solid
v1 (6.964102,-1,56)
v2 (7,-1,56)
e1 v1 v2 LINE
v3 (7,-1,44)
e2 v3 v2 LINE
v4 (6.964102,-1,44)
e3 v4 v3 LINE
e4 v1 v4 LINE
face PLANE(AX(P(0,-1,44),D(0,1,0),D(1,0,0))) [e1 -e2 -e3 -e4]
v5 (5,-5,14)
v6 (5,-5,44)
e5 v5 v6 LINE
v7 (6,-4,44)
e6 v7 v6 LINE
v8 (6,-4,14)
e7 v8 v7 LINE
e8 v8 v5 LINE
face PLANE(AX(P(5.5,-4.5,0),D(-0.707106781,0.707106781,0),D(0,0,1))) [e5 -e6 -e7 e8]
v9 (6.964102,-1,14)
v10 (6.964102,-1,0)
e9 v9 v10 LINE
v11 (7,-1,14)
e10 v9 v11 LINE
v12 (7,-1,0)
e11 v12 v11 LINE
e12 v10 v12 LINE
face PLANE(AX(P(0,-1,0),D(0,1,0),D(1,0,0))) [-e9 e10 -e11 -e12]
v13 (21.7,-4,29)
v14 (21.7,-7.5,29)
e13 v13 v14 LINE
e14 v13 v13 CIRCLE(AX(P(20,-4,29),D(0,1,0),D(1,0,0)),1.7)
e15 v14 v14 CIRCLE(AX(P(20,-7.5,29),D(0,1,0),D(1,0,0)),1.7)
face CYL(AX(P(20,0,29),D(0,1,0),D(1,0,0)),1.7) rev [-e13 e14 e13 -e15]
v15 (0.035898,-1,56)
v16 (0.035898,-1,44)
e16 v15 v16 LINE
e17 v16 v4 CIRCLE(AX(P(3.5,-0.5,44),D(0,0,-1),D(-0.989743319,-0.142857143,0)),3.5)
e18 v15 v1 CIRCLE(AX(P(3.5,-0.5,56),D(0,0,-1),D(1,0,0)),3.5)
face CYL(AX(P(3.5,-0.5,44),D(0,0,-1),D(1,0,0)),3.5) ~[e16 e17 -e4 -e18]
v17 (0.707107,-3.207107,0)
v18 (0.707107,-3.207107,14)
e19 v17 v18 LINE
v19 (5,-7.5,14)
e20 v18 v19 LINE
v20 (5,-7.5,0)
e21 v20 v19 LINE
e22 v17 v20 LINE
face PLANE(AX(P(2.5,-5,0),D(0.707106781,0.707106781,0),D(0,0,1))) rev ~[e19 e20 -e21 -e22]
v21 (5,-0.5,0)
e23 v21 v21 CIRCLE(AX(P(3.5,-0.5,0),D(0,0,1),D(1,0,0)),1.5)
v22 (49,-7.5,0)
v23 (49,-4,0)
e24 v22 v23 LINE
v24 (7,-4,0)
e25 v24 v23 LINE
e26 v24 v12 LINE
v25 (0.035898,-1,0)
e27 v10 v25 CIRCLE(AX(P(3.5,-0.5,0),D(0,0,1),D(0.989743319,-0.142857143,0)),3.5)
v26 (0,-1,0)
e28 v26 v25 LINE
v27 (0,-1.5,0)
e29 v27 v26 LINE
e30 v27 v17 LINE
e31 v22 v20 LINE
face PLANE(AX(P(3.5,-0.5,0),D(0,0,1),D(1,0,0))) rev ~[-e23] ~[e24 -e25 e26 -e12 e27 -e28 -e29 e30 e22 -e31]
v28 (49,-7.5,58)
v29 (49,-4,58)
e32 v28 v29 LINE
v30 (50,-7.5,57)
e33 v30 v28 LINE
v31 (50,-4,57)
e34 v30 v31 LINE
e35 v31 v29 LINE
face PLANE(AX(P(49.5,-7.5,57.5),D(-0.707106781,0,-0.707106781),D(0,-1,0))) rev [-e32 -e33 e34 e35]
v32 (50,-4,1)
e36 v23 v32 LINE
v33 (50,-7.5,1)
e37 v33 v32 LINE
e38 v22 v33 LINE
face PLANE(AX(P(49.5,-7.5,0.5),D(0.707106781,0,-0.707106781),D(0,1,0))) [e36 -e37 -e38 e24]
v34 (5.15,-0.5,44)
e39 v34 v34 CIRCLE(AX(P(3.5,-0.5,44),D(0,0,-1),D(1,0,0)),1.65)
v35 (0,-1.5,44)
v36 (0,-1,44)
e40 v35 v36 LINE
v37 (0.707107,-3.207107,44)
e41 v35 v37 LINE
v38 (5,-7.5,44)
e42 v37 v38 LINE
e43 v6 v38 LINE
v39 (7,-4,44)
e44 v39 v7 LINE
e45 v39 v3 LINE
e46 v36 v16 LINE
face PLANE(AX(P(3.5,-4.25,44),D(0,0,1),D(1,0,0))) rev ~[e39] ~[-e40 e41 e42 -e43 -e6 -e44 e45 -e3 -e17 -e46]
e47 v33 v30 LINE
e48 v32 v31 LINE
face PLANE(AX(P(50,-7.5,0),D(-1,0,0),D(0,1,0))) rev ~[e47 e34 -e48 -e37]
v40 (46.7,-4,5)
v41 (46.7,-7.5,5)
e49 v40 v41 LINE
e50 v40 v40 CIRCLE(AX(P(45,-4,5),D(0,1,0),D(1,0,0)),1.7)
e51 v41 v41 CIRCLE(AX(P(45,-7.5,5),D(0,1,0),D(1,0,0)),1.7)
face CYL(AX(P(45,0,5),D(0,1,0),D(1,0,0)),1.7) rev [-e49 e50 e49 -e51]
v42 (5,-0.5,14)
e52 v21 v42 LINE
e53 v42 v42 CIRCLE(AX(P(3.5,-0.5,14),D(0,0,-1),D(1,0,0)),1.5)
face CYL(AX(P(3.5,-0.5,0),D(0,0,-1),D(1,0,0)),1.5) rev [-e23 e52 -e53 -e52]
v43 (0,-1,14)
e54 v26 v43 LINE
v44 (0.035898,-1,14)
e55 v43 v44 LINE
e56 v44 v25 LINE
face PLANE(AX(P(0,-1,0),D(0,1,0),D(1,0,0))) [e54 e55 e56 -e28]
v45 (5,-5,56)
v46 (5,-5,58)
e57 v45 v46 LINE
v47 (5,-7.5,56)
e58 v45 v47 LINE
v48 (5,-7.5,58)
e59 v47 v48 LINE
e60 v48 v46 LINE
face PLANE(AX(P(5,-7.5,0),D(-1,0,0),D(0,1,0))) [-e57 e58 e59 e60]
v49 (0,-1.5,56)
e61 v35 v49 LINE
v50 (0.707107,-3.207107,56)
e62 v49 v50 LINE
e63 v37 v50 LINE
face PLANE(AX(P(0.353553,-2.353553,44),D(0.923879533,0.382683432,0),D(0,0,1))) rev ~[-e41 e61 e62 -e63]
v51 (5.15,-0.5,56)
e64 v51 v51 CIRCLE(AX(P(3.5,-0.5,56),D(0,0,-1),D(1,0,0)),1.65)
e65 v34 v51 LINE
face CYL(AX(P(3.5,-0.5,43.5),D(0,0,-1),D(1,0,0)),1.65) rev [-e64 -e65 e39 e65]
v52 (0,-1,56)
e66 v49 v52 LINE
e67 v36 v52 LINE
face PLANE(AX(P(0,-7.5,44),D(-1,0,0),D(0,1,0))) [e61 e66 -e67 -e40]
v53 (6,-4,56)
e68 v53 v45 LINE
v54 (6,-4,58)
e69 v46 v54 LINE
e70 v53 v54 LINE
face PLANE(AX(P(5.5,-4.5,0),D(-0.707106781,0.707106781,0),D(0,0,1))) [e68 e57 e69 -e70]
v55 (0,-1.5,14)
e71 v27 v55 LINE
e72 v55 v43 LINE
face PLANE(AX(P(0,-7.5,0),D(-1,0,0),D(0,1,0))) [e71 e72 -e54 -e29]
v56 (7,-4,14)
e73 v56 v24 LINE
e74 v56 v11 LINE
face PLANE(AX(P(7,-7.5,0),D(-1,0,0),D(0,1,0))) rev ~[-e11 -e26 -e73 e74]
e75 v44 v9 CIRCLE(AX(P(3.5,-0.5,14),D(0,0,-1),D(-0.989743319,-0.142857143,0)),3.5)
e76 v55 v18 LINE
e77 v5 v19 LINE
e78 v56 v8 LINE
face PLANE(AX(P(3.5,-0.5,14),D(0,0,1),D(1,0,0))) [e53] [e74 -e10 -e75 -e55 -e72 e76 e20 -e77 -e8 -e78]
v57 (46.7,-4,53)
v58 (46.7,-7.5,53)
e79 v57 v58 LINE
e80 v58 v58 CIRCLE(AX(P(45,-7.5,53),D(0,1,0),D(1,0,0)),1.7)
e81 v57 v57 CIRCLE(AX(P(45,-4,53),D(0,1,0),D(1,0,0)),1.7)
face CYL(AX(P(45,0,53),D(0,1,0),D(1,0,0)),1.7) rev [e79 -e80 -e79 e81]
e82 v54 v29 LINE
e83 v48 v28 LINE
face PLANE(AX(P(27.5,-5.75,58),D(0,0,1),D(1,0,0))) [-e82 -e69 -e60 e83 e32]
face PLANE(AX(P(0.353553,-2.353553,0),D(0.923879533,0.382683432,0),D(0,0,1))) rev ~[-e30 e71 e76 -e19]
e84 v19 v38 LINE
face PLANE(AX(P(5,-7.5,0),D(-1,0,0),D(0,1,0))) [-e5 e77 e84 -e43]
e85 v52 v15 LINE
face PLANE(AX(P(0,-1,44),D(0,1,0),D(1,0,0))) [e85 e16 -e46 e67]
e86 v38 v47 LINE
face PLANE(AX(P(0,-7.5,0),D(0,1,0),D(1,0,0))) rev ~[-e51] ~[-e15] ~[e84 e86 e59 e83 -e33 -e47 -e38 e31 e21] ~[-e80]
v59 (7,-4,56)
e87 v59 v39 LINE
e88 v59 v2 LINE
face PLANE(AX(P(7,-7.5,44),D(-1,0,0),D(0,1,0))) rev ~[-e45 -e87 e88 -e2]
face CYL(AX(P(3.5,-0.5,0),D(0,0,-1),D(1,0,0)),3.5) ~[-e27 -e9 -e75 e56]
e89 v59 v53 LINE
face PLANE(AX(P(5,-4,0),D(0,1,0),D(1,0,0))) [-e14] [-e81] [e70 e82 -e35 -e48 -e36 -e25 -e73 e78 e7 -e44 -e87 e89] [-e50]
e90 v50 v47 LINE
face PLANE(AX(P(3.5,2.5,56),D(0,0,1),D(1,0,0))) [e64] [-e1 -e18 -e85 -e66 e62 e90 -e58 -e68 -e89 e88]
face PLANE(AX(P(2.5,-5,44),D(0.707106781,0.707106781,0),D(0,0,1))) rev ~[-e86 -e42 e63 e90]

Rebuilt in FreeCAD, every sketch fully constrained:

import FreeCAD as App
import Part
import Sketcher


def edges_at(feature, points):
    """Names of the edges that pass closest to the given points."""
    edges = feature.Shape.Edges
    near = lambda p: min(range(len(edges)), key=lambda i: edges[i].distToShape(Part.Vertex(*p))[0])
    return sorted({f"Edge{near(p) + 1}" for p in points})

doc = App.newDocument("Part")
body = doc.addObject("PartDesign::Body", "Body")

# Sketch on XZ plane
sketch1 = body.newObject("Sketcher::SketchObject", "Sketch")
sketch1.AttachmentSupport = (doc.getObject("XZ_Plane"), [""])
sketch1.MapMode = "FlatFace"
sketch1.addGeometry(Part.Circle(App.Vector(45, 5, 0), App.Vector(0, 0, 1), 1.7), False)
sketch1.addConstraint(Sketcher.Constraint("Diameter", 0, 3.4))
sketch1.addConstraint(Sketcher.Constraint("DistanceX", -1, 1, 0, 3, 45.0))
sketch1.addConstraint(Sketcher.Constraint("DistanceY", -1, 1, 0, 3, 5.0))
pad1 = body.newObject("PartDesign::Pad", "Pad")
pad1.Profile = sketch1
pad1.Length = 10
body2 = doc.addObject("PartDesign::Body", "Body001")

# Sketch on XZ plane
sketch2 = body2.newObject("Sketcher::SketchObject", "Sketch001")
sketch2.AttachmentSupport = (doc.getObject("XZ_Plane001"), [""])
sketch2.MapMode = "FlatFace"
sketch2.addGeometry(Part.Circle(App.Vector(45, 53, 0), App.Vector(0, 0, 1), 1.7), False)
sketch2.addConstraint(Sketcher.Constraint("Diameter", 0, 3.4))
sketch2.addConstraint(Sketcher.Constraint("DistanceX", -1, 1, 0, 3, 45.0))
sketch2.addConstraint(Sketcher.Constraint("DistanceY", -1, 1, 0, 3, 53.0))
pad2 = body2.newObject("PartDesign::Pad", "Pad001")
pad2.Profile = sketch2
pad2.Length = 10
body3 = doc.addObject("PartDesign::Body", "Body002")
body3.AllowCompound = True

# Sketch on XZ plane
sketch3 = body3.newObject("Sketcher::SketchObject", "Sketch002")
sketch3.AttachmentSupport = (doc.getObject("XZ_Plane002"), [""])
sketch3.MapMode = "FlatFace"
sketch3.addGeometry(Part.Circle(App.Vector(20, 29, 0), App.Vector(0, 0, 1), 1.7), False)
sketch3.addConstraint(Sketcher.Constraint("Diameter", 0, 3.4))
sketch3.addConstraint(Sketcher.Constraint("DistanceX", -1, 1, 0, 3, 20.0))
sketch3.addConstraint(Sketcher.Constraint("DistanceY", -1, 1, 0, 3, 29.0))
pad3 = body3.newObject("PartDesign::Pad", "Pad002")
pad3.Profile = sketch3
pad3.Length = 10
doc.recompute()

boolean = body3.newObject("PartDesign::Boolean", "Boolean")
boolean.Type = "Fuse"
boolean.addObjects([body])
doc.recompute()

boolean2 = body3.newObject("PartDesign::Boolean", "Boolean001")
boolean2.Type = "Fuse"
boolean2.addObjects([body2])
body4 = doc.addObject("PartDesign::Body", "Body003")

# Sketch on XY plane
sketch4 = body4.newObject("Sketcher::SketchObject", "Sketch003")
sketch4.AttachmentSupport = (doc.getObject("XY_Plane003"), [""])
sketch4.MapMode = "FlatFace"
sketch4.addGeometry(Part.Circle(App.Vector(3.5, -0.5, 0), App.Vector(0, 0, 1), 1.5), False)
sketch4.addConstraint(Sketcher.Constraint("Diameter", 0, 3.0))
sketch4.addConstraint(Sketcher.Constraint("DistanceX", -1, 1, 0, 3, 3.5))
sketch4.addConstraint(Sketcher.Constraint("DistanceY", 0, 3, -1, 1, 0.5))
pad4 = body4.newObject("PartDesign::Pad", "Pad003")
pad4.Profile = sketch4
pad4.Length = 15
body5 = doc.addObject("PartDesign::Body", "Body004")

# Sketch on XY plane
sketch5 = body5.newObject("Sketcher::SketchObject", "Sketch004")
sketch5.AttachmentSupport = (doc.getObject("XY_Plane004"), [""])
sketch5.MapMode = "FlatFace"
sketch5.addGeometry(Part.Circle(App.Vector(3.5, -0.5, 0), App.Vector(0, 0, 1), 3.5), False)
sketch5.addConstraint(Sketcher.Constraint("Diameter", 0, 7.0))
sketch5.addConstraint(Sketcher.Constraint("DistanceX", -1, 1, 0, 3, 3.5))
sketch5.addConstraint(Sketcher.Constraint("DistanceY", 0, 3, -1, 1, 0.5))
pad5 = body5.newObject("PartDesign::Pad", "Pad004")
pad5.Profile = sketch5
pad5.Length = 14
body6 = doc.addObject("PartDesign::Body", "Body005")

# Sketch on XY plane
sketch6 = body6.newObject("Sketcher::SketchObject", "Sketch005")
sketch6.AttachmentSupport = (doc.getObject("XY_Plane005"), [""])
sketch6.MapMode = "FlatFace"
sketch6.addGeometry(Part.LineSegment(App.Vector(0, -1, 0), App.Vector(0, -7.5, 0)), False)
sketch6.addGeometry(Part.LineSegment(App.Vector(0, -7.5, 0), App.Vector(7, -7.5, 0)), False)
sketch6.addGeometry(Part.LineSegment(App.Vector(7, -7.5, 0), App.Vector(7, -1, 0)), False)
sketch6.addGeometry(Part.LineSegment(App.Vector(7, -1, 0), App.Vector(0, -1, 0)), False)
sketch6.addConstraint(Sketcher.Constraint("Coincident", 0, 2, 1, 1))
sketch6.addConstraint(Sketcher.Constraint("Coincident", 1, 2, 2, 1))
sketch6.addConstraint(Sketcher.Constraint("Coincident", 2, 2, 3, 1))
sketch6.addConstraint(Sketcher.Constraint("Coincident", 3, 2, 0, 1))
sketch6.addConstraint(Sketcher.Constraint("Vertical", 0))
sketch6.addConstraint(Sketcher.Constraint("Horizontal", 1))
sketch6.addConstraint(Sketcher.Constraint("Vertical", 2))
sketch6.addConstraint(Sketcher.Constraint("Horizontal", 3))
sketch6.addConstraint(Sketcher.Constraint("PointOnObject", 0, 2, -2))
sketch6.addConstraint(Sketcher.Constraint("DistanceX", 1, 1, 1, 2, 7.0))
sketch6.addConstraint(Sketcher.Constraint("DistanceY", 0, 2, 0, 1, 6.5))
sketch6.addConstraint(Sketcher.Constraint("DistanceY", 2, 2, -1, 1, 1.0))
pad6 = body6.newObject("PartDesign::Pad", "Pad005")
pad6.Profile = sketch6
pad6.Length = 14
doc.recompute()

chamfer = body6.newObject("PartDesign::Chamfer", "Chamfer")
chamfer.Base = (pad6, edges_at(pad6, [(0, -7.5, 7)]))
chamfer.Size = 5
doc.recompute()

chamfer2 = body6.newObject("PartDesign::Chamfer", "Chamfer001")
chamfer2.Base = (chamfer, edges_at(chamfer, [(0, -2.5, 7)]))
chamfer2.Size = 1
doc.recompute()

boolean3 = body6.newObject("PartDesign::Boolean", "Boolean002")
boolean3.Type = "Fuse"
boolean3.addObjects([body5])
doc.recompute()

boolean4 = body6.newObject("PartDesign::Boolean", "Boolean003")
boolean4.Type = "Cut"
boolean4.addObjects([body4])
body7 = doc.addObject("PartDesign::Body", "Body006")

# Sketch on XY plane
sketch7 = body7.newObject("Sketcher::SketchObject", "Sketch006")
sketch7.AttachmentSupport = (doc.getObject("XY_Plane006"), [""])
sketch7.MapMode = "FlatFace"
sketch7.addGeometry(Part.LineSegment(App.Vector(5, -4, 0), App.Vector(5, -7.5, 0)), False)
sketch7.addGeometry(Part.LineSegment(App.Vector(5, -7.5, 0), App.Vector(50, -7.5, 0)), False)
sketch7.addGeometry(Part.LineSegment(App.Vector(50, -7.5, 0), App.Vector(50, -4, 0)), False)
sketch7.addGeometry(Part.LineSegment(App.Vector(50, -4, 0), App.Vector(5, -4, 0)), False)
sketch7.addConstraint(Sketcher.Constraint("Coincident", 0, 2, 1, 1))
sketch7.addConstraint(Sketcher.Constraint("Coincident", 1, 2, 2, 1))
sketch7.addConstraint(Sketcher.Constraint("Coincident", 2, 2, 3, 1))
sketch7.addConstraint(Sketcher.Constraint("Coincident", 3, 2, 0, 1))
sketch7.addConstraint(Sketcher.Constraint("Vertical", 0))
sketch7.addConstraint(Sketcher.Constraint("Horizontal", 1))
sketch7.addConstraint(Sketcher.Constraint("Vertical", 2))
sketch7.addConstraint(Sketcher.Constraint("Horizontal", 3))
sketch7.addConstraint(Sketcher.Constraint("DistanceX", 1, 1, 1, 2, 45.0))
sketch7.addConstraint(Sketcher.Constraint("DistanceY", 0, 2, 0, 1, 3.5))
sketch7.addConstraint(Sketcher.Constraint("DistanceX", -1, 1, 0, 2, 5.0))
sketch7.addConstraint(Sketcher.Constraint("DistanceY", 2, 2, -1, 1, 4.0))
pad7 = body7.newObject("PartDesign::Pad", "Pad006")
pad7.Profile = sketch7
pad7.Length = 58
doc.recompute()

chamfer3 = body7.newObject("PartDesign::Chamfer", "Chamfer002")
chamfer3.Base = (pad7, edges_at(pad7, [(5, -4, 29)]))
chamfer3.Size = 1
body8 = doc.addObject("PartDesign::Body", "Body007")

# Sketch on XY plane
sketch8 = body8.newObject("Sketcher::SketchObject", "Sketch007")
sketch8.AttachmentSupport = (doc.getObject("XY_Plane007"), [""])
sketch8.MapMode = "FlatFace"
sketch8.AttachmentOffset = App.Placement(App.Vector(0, 0, 56), App.Rotation())
sketch8.addGeometry(Part.LineSegment(App.Vector(-1.5, 14.5, 0), App.Vector(-1.5, -9.5, 0)), False)
sketch8.addGeometry(Part.LineSegment(App.Vector(-1.5, -9.5, 0), App.Vector(8.5, -9.5, 0)), False)
sketch8.addGeometry(Part.LineSegment(App.Vector(8.5, -9.5, 0), App.Vector(8.5, 14.5, 0)), False)
sketch8.addGeometry(Part.LineSegment(App.Vector(8.5, 14.5, 0), App.Vector(-1.5, 14.5, 0)), False)
sketch8.addConstraint(Sketcher.Constraint("Coincident", 0, 2, 1, 1))
sketch8.addConstraint(Sketcher.Constraint("Coincident", 1, 2, 2, 1))
sketch8.addConstraint(Sketcher.Constraint("Coincident", 2, 2, 3, 1))
sketch8.addConstraint(Sketcher.Constraint("Coincident", 3, 2, 0, 1))
sketch8.addConstraint(Sketcher.Constraint("Vertical", 0))
sketch8.addConstraint(Sketcher.Constraint("Horizontal", 1))
sketch8.addConstraint(Sketcher.Constraint("Vertical", 2))
sketch8.addConstraint(Sketcher.Constraint("Horizontal", 3))
sketch8.addConstraint(Sketcher.Constraint("DistanceX", 1, 1, 1, 2, 10.0))
sketch8.addConstraint(Sketcher.Constraint("DistanceY", 0, 2, 0, 1, 24.0))
sketch8.addConstraint(Sketcher.Constraint("DistanceX", 0, 2, -1, 1, 1.5))
sketch8.addConstraint(Sketcher.Constraint("DistanceY", 0, 2, -1, 1, 9.5))
pad8 = body8.newObject("PartDesign::Pad", "Pad007")
pad8.Profile = sketch8
pad8.Length = 10
body9 = doc.addObject("PartDesign::Body", "Body008")

# Sketch on XY plane
sketch9 = body9.newObject("Sketcher::SketchObject", "Sketch008")
sketch9.AttachmentSupport = (doc.getObject("XY_Plane008"), [""])
sketch9.MapMode = "FlatFace"
sketch9.AttachmentOffset = App.Placement(App.Vector(0, 0, 43.5), App.Rotation())
sketch9.addGeometry(Part.Circle(App.Vector(3.5, -0.5, 0), App.Vector(0, 0, 1), 1.65), False)
sketch9.addConstraint(Sketcher.Constraint("Diameter", 0, 3.3))
sketch9.addConstraint(Sketcher.Constraint("DistanceX", -1, 1, 0, 3, 3.5))
sketch9.addConstraint(Sketcher.Constraint("DistanceY", 0, 3, -1, 1, 0.5))
pad9 = body9.newObject("PartDesign::Pad", "Pad008")
pad9.Profile = sketch9
pad9.Length = 15
body10 = doc.addObject("PartDesign::Body", "Body009")

# Sketch on XY plane
sketch10 = body10.newObject("Sketcher::SketchObject", "Sketch009")
sketch10.AttachmentSupport = (doc.getObject("XY_Plane009"), [""])
sketch10.MapMode = "FlatFace"
sketch10.AttachmentOffset = App.Placement(App.Vector(0, 0, 44), App.Rotation())
sketch10.addGeometry(Part.LineSegment(App.Vector(0, -1, 0), App.Vector(0, -7.5, 0)), False)
sketch10.addGeometry(Part.LineSegment(App.Vector(0, -7.5, 0), App.Vector(7, -7.5, 0)), False)
sketch10.addGeometry(Part.LineSegment(App.Vector(7, -7.5, 0), App.Vector(7, -1, 0)), False)
sketch10.addGeometry(Part.LineSegment(App.Vector(7, -1, 0), App.Vector(0, -1, 0)), False)
sketch10.addConstraint(Sketcher.Constraint("Coincident", 0, 2, 1, 1))
sketch10.addConstraint(Sketcher.Constraint("Coincident", 1, 2, 2, 1))
sketch10.addConstraint(Sketcher.Constraint("Coincident", 2, 2, 3, 1))
sketch10.addConstraint(Sketcher.Constraint("Coincident", 3, 2, 0, 1))
sketch10.addConstraint(Sketcher.Constraint("Vertical", 0))
sketch10.addConstraint(Sketcher.Constraint("Horizontal", 1))
sketch10.addConstraint(Sketcher.Constraint("Vertical", 2))
sketch10.addConstraint(Sketcher.Constraint("Horizontal", 3))
sketch10.addConstraint(Sketcher.Constraint("PointOnObject", 0, 2, -2))
sketch10.addConstraint(Sketcher.Constraint("DistanceX", 1, 1, 1, 2, 7.0))
sketch10.addConstraint(Sketcher.Constraint("DistanceY", 0, 2, 0, 1, 6.5))
sketch10.addConstraint(Sketcher.Constraint("DistanceY", 2, 2, -1, 1, 1.0))
pad10 = body10.newObject("PartDesign::Pad", "Pad009")
pad10.Profile = sketch10
pad10.Length = 14
doc.recompute()

chamfer4 = body10.newObject("PartDesign::Chamfer", "Chamfer003")
chamfer4.Base = (pad10, edges_at(pad10, [(0, -7.5, 51)]))
chamfer4.Size = 5
doc.recompute()

chamfer5 = body10.newObject("PartDesign::Chamfer", "Chamfer004")
chamfer5.Base = (chamfer4, edges_at(chamfer4, [(0, -2.5, 51)]))
chamfer5.Size = 1
body11 = doc.addObject("PartDesign::Body", "Body010")
body11.AllowCompound = True

# Sketch on XY plane
sketch11 = body11.newObject("Sketcher::SketchObject", "Sketch010")
sketch11.AttachmentSupport = (doc.getObject("XY_Plane010"), [""])
sketch11.MapMode = "FlatFace"
sketch11.AttachmentOffset = App.Placement(App.Vector(0, 0, 44), App.Rotation())
sketch11.addGeometry(Part.Circle(App.Vector(3.5, -0.5, 0), App.Vector(0, 0, 1), 3.5), False)
sketch11.addConstraint(Sketcher.Constraint("Diameter", 0, 7.0))
sketch11.addConstraint(Sketcher.Constraint("DistanceX", -1, 1, 0, 3, 3.5))
sketch11.addConstraint(Sketcher.Constraint("DistanceY", 0, 3, -1, 1, 0.5))
pad11 = body11.newObject("PartDesign::Pad", "Pad010")
pad11.Profile = sketch11
pad11.Length = 14
doc.recompute()

boolean5 = body11.newObject("PartDesign::Boolean", "Boolean004")
boolean5.Type = "Fuse"
boolean5.addObjects([body10])
doc.recompute()

boolean6 = body11.newObject("PartDesign::Boolean", "Boolean005")
boolean6.Type = "Cut"
boolean6.addObjects([body9])
doc.recompute()

boolean7 = body11.newObject("PartDesign::Boolean", "Boolean006")
boolean7.Type = "Cut"
boolean7.addObjects([body8])
doc.recompute()

boolean8 = body11.newObject("PartDesign::Boolean", "Boolean007")
boolean8.Type = "Fuse"
boolean8.addObjects([body6])
doc.recompute()

boolean9 = body11.newObject("PartDesign::Boolean", "Boolean008")
boolean9.Type = "Fuse"
boolean9.addObjects([body7])
doc.recompute()

boolean10 = body11.newObject("PartDesign::Boolean", "Boolean009")
boolean10.Type = "Cut"
boolean10.addObjects([body3])
doc.recompute()

chamfer6 = body11.newObject("PartDesign::Chamfer", "Chamfer005")
chamfer6.Base = (boolean10, edges_at(boolean10, [(50, -5.75, 0), (50, -5.75, 58)]))
chamfer6.Size = 1

doc.recompute()
